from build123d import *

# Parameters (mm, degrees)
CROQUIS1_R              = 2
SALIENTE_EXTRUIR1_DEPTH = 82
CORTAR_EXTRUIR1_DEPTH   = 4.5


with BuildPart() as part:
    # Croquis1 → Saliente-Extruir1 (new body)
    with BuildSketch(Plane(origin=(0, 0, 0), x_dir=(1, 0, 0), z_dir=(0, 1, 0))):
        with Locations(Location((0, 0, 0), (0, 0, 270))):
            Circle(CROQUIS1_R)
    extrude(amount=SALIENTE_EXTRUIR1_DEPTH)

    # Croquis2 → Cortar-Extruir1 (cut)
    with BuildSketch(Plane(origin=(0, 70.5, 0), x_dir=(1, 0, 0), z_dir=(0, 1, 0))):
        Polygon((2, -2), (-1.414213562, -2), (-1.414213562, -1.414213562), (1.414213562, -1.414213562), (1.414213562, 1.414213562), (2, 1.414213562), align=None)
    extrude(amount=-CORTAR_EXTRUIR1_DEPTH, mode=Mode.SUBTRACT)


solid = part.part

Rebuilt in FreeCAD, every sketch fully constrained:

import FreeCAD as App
import Part
import Sketcher
from FreeCAD import Vector
Q = App.Units.Quantity


def add_polygon(sketch, points):
    """Adds a closed chain of lines whose ends are joined by coincident constraints."""
    first, n = sketch.GeometryCount, len(points)
    for a, b in zip(points, points[1:] + points[:1]):
        sketch.addGeometry(Part.LineSegment(App.Vector(*a, 0), App.Vector(*b, 0)), False)
    for i in range(n):
        sketch.addConstraint(Sketcher.Constraint("Coincident", first + i, 2, first + (i + 1) % n, 1))

doc = App.newDocument("Part")
body = doc.addObject("PartDesign::Body", "Body")

sketch1 = body.newObject("Sketcher::SketchObject", "Sketch")
sketch1.AttachmentSupport = (doc.getObject("XZ_Plane"), [""])
sketch1.MapMode = "FlatFace"
sketch1.addGeometry(Part.Circle(Vector(0, 0, 0), Vector(0, 0, 1), 2), False)
sketch1.addConstraint(Sketcher.Constraint("Coincident", 0, 3, -1, 1))
sketch1.addConstraint(Sketcher.Constraint("Diameter", 0, Q("4 mm")))
pad1 = body.newObject("PartDesign::Pad", "Pad")
pad1.Profile = sketch1
pad1.Length = 82
pad1.Reversed = True

sketch2 = body.newObject("Sketcher::SketchObject", "Sketch001")
sketch2.AttachmentSupport = (doc.getObject("XZ_Plane"), [""])
sketch2.MapMode = "FlatFace"
sketch2.AttachmentOffset = App.Placement(Vector(0, 0, -70.5), App.Rotation())
add_polygon(sketch2, [(-1.4, 2), (2, 2), (2, -1.4), (1.4, -1.4), (1.4, 1.4), (-1.4, 1.4)])
sketch2.addConstraint(Sketcher.Constraint("Horizontal", 0))
sketch2.addConstraint(Sketcher.Constraint("Vertical", 1))
sketch2.addConstraint(Sketcher.Constraint("Horizontal", 2))
sketch2.addConstraint(Sketcher.Constraint("Vertical", 3))
sketch2.addConstraint(Sketcher.Constraint("Horizontal", 4))
sketch2.addConstraint(Sketcher.Constraint("Vertical", 5))
sketch2.addConstraint(Sketcher.Constraint("Symmetric", 2, 2, 4, 2, -1, 1))
sketch2.addConstraint(Sketcher.Constraint("Equal", 0, 1))
sketch2.addConstraint(Sketcher.Constraint("Equal", 4, 3))
sketch2.addConstraint(Sketcher.Constraint("DistanceX", -1, 1, 0, 2, Q("2 mm")))
sketch2.addConstraint(Sketcher.Constraint("DistanceX", 0, 1, 0, 2, Q("3.414214 mm")))
pocket1 = body.newObject("PartDesign::Pocket", "Pocket")
pocket1.Profile = sketch2
pocket1.Length = 4.5
pocket1.Reversed = True

doc.recompute()
